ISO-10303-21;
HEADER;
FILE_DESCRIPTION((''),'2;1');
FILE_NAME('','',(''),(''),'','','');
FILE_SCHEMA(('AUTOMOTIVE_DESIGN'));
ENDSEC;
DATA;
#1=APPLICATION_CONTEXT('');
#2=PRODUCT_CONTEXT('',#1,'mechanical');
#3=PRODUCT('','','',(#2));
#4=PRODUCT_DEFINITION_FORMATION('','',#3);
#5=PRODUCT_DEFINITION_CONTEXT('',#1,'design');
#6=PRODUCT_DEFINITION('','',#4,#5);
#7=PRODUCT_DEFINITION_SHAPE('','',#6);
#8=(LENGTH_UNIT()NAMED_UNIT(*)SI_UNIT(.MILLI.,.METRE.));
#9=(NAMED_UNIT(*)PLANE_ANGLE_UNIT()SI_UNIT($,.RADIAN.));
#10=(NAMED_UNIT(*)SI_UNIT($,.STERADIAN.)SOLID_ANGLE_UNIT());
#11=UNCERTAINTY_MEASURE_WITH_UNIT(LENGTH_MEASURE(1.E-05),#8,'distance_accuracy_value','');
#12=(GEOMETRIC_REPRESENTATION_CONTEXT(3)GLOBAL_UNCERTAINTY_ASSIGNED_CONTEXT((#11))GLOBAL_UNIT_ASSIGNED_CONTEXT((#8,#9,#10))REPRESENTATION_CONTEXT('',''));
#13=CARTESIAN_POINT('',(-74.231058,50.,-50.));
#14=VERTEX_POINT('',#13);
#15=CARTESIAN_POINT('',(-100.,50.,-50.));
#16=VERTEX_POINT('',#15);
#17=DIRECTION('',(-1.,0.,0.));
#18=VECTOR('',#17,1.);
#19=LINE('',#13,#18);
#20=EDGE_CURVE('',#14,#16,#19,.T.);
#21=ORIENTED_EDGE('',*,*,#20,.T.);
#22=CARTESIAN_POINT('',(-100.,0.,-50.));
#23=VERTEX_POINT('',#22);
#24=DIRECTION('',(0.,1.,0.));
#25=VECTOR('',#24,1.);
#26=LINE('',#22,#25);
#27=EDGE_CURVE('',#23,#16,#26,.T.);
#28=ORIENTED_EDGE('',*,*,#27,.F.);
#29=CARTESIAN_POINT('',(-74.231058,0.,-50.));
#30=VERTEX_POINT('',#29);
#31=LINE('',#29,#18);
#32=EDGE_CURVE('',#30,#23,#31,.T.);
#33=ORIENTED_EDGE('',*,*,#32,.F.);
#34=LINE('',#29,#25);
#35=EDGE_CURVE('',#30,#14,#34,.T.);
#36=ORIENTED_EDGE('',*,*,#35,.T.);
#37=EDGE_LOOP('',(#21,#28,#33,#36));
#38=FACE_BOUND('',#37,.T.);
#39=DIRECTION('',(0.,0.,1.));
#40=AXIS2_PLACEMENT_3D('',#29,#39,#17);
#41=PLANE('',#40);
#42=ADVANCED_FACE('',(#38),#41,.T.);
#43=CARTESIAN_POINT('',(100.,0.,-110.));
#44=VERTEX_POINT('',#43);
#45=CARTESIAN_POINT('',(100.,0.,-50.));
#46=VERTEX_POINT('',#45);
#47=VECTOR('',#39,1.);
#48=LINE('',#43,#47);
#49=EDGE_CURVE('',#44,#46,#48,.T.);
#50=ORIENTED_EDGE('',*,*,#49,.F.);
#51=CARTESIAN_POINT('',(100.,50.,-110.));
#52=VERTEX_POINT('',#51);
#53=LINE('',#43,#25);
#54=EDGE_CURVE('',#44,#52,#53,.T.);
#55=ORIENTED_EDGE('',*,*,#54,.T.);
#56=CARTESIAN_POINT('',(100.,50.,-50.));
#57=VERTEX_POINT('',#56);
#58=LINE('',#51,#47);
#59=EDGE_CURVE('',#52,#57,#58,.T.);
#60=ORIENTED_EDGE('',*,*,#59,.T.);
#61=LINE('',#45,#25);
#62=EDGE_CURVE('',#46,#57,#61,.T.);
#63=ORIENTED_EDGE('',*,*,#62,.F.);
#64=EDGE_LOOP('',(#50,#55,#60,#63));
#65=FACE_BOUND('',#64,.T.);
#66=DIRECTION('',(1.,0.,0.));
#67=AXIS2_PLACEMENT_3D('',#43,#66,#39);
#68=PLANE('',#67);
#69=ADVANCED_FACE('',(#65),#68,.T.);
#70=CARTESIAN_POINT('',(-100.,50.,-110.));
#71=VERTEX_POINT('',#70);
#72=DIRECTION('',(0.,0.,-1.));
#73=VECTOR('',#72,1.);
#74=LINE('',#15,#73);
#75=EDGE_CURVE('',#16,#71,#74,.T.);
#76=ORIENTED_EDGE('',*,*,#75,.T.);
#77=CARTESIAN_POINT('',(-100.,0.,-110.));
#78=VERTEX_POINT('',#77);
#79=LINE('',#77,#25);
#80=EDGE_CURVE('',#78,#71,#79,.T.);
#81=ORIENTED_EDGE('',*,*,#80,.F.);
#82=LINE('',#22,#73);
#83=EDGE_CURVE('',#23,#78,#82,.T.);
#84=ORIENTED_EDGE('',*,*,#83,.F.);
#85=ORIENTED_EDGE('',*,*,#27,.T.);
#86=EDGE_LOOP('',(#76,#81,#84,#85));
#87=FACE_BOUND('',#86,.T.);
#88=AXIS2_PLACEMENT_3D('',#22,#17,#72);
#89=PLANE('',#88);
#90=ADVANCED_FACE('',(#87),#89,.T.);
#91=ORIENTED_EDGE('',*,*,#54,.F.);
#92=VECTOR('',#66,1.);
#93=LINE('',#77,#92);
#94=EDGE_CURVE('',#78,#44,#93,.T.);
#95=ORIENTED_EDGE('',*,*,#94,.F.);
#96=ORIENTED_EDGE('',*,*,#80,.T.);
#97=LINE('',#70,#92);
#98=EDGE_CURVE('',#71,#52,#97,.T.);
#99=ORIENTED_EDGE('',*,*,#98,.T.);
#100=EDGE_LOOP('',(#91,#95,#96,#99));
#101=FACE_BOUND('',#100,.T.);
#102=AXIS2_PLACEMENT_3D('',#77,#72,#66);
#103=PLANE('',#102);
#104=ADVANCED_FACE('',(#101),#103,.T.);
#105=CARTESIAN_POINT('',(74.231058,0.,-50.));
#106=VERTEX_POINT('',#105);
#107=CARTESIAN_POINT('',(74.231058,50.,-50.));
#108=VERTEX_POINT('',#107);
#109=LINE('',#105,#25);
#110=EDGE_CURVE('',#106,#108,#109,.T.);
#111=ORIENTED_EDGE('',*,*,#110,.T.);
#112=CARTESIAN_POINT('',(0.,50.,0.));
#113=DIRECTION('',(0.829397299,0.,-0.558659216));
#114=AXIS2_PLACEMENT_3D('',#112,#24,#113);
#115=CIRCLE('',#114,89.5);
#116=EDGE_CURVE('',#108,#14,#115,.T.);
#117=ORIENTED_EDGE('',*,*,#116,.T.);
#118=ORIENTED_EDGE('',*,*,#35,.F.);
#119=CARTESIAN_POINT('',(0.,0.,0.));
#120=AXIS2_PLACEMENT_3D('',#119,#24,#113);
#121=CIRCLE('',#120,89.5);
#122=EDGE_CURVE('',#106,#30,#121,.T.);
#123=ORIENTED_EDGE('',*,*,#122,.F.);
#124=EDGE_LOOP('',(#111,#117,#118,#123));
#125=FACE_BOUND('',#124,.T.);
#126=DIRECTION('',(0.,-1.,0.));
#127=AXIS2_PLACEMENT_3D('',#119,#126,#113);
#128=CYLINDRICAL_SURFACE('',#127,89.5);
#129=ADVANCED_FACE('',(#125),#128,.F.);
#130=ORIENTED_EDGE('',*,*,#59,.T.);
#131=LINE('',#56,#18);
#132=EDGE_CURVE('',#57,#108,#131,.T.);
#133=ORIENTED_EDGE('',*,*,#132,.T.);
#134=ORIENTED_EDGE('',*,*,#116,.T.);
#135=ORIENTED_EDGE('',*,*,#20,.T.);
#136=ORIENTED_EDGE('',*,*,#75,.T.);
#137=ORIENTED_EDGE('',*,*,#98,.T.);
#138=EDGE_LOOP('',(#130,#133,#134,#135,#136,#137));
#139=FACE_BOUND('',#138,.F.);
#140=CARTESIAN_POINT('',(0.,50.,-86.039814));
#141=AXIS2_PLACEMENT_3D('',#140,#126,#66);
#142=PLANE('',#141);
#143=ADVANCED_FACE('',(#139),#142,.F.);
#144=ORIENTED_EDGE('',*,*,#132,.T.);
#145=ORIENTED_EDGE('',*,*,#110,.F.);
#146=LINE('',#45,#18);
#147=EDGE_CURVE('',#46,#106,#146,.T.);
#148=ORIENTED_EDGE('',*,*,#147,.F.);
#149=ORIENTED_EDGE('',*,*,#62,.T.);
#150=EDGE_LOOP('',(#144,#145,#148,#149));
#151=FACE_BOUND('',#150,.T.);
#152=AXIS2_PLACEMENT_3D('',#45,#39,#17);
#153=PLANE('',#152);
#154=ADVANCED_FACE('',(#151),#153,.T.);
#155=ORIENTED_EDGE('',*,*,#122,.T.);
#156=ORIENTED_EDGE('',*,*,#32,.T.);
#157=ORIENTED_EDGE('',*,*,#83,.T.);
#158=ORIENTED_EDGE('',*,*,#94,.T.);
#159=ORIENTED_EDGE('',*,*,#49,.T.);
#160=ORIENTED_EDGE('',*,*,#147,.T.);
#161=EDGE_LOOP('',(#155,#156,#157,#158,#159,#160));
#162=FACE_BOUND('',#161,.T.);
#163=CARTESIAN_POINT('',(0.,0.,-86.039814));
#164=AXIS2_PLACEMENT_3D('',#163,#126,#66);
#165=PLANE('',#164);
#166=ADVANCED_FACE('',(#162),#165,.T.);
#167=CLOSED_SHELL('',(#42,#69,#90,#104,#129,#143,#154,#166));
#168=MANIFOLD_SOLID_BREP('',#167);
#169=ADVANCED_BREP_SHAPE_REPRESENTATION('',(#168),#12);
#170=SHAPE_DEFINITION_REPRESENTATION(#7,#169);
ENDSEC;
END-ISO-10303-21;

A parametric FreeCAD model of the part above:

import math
import FreeCAD as App
import Part
import Sketcher
from FreeCAD import Vector
Q = App.Units.Quantity

doc = App.newDocument("Part")
body = doc.addObject("PartDesign::Body", "Body")

sketch1 = body.newObject("Sketcher::SketchObject", "Sketch")
sketch1.AttachmentSupport = (doc.getObject("XZ_Plane"), [""])
sketch1.MapMode = "FlatFace"
sketch1.addGeometry([
    Part.ArcOfCircle(Part.Circle(Vector(0, 0, 0), Vector(0, 0, 1), 89), math.radians(-146), math.radians(-34)),
    Part.LineSegment(Vector(-74, -50, 0), Vector(-100, -50, 0)),
    Part.LineSegment(Vector(-100, -50, 0), Vector(-100, -110, 0)),
    Part.LineSegment(Vector(-100, -110, 0), Vector(100, -110, 0)),
    Part.LineSegment(Vector(100, -110, 0), Vector(100, -50, 0)),
    Part.LineSegment(Vector(100, -50, 0), Vector(74, -50, 0)),
], False)
sketch1.addConstraint([
    Sketcher.Constraint("Coincident", 0, 1, 1, 1),
    Sketcher.Constraint("Coincident", 1, 2, 2, 1),
    Sketcher.Constraint("Coincident", 2, 2, 3, 1),
    Sketcher.Constraint("Coincident", 3, 2, 4, 1),
    Sketcher.Constraint("Coincident", 4, 2, 5, 1),
    Sketcher.Constraint("Coincident", 5, 2, 0, 2),
    Sketcher.Constraint("Horizontal", 1),
    Sketcher.Constraint("Vertical", 2),
    Sketcher.Constraint("Horizontal", 3),
    Sketcher.Constraint("Vertical", 4),
    Sketcher.Constraint("Horizontal", 5),
    Sketcher.Constraint("Coincident", 0, 3, -1, 1),
    Sketcher.Constraint("Symmetric", 1, 2, 4, 2, -2),
    Sketcher.Constraint("Radius", 0, Q("89.5 mm")),
    Sketcher.Constraint("DistanceX", 3, 1, 3, 2, Q("200 mm")),
    Sketcher.Constraint("DistanceY", 2, 2, 2, 1, Q("60 mm")),
    Sketcher.Constraint("DistanceY", 0, 1, -1, 1, Q("50 mm")),
])
pad1 = body.newObject("PartDesign::Pad", "Pad")
pad1.Profile = sketch1
pad1.Length = 50
pad1.Reversed = True

doc.recompute()
